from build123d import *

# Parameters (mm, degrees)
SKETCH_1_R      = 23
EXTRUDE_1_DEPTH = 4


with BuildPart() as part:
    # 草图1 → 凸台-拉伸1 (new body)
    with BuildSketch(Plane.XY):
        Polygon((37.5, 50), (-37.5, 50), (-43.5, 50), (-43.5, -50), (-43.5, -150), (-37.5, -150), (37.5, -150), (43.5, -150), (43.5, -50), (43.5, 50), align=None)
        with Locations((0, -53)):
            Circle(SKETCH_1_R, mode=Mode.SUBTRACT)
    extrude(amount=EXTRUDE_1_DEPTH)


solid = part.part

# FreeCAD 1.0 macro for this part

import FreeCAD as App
import Part
import Sketcher
from FreeCAD import Vector

doc = App.newDocument("Part")
params = doc.addObject("Spreadsheet::Sheet", "Params")
for row, (alias, value) in enumerate([
    ("sketch1_diameter", "46 mm"),
    ("sketch1_width", "87 mm"),
    ("sketch1_height", "200 mm"),
    ("pad1_length", "4 mm"),
], start=1):
    params.set(f"A{row}", alias)
    params.set(f"B{row}", "=" + value)
    params.setAlias(f"B{row}", alias)

body = doc.addObject("PartDesign::Body", "Body")

# Sketch on XY plane
sketch1 = body.newObject("Sketcher::SketchObject", "Sketch")
sketch1.AttachmentSupport = (doc.getObject("XY_Plane"), [""])
sketch1.MapMode = "FlatFace"
sketch1.addGeometry([
    Part.LineSegment(Vector(-43.5, 50, 0), Vector(-43.5, -150, 0)),  # 0
    Part.LineSegment(Vector(-43.5, -150, 0), Vector(43.5, -150, 0)),  # 1
    Part.LineSegment(Vector(43.5, -150, 0), Vector(43.5, 50, 0)),  # 2
    Part.LineSegment(Vector(43.5, 50, 0), Vector(-43.5, 50, 0)),  # 3
    Part.Circle(Vector(0, -53, 0), Vector(0, 0, 1), 23),  # 4
], False)
sketch1.addConstraint([
    Sketcher.Constraint("Coincident", 0, 2, 1, 1),
    Sketcher.Constraint("Coincident", 1, 2, 2, 1),
    Sketcher.Constraint("Coincident", 2, 2, 3, 1),
    Sketcher.Constraint("Coincident", 3, 2, 0, 1),
    Sketcher.Constraint("Vertical", 0),
    Sketcher.Constraint("Horizontal", 1),
    Sketcher.Constraint("Vertical", 2),
    Sketcher.Constraint("Horizontal", 3),
    Sketcher.Constraint("PointOnObject", 4, 3, -2),
    Sketcher.Constraint("Diameter", 4, 46.0),
    Sketcher.Constraint("DistanceX", 1, 1, 1, 2, 87.0),
    Sketcher.Constraint("DistanceY", 0, 2, 0, 1, 200.0),
    Sketcher.Constraint("DistanceY", 4, 3, -1, 1, 53.0),
    Sketcher.Constraint("DistanceY", 0, 2, -1, 1, 150.0),
    Sketcher.Constraint("DistanceX", 0, 2, -1, 1, 43.5),
])
sketch1.setExpression("Constraints[9]", "Params.sketch1_diameter")
sketch1.setExpression("Constraints[10]", "Params.sketch1_width")
sketch1.setExpression("Constraints[11]", "Params.sketch1_height")
pad1 = body.newObject("PartDesign::Pad", "Pad")
pad1.Profile = sketch1
pad1.setExpression("Length", "Params.pad1_length")

doc.recompute()
